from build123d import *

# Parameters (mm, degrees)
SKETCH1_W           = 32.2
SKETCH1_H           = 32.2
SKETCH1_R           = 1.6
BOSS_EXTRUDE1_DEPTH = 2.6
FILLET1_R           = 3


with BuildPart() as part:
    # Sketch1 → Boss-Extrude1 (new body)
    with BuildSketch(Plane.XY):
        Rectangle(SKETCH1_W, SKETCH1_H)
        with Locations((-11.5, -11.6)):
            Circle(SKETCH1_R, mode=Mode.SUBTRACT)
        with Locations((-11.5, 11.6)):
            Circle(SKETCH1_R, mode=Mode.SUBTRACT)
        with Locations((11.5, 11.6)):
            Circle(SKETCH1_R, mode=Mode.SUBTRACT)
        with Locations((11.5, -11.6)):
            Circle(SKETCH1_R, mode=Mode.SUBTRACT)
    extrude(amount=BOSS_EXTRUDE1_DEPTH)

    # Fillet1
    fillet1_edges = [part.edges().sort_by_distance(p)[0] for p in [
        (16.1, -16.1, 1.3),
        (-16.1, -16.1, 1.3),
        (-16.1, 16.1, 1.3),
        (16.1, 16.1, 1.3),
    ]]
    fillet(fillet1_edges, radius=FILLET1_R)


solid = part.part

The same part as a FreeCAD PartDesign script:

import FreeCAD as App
import Part
import Sketcher

V = App.Vector


def edges_at(feature, points):
    """Names of the edges that pass closest to the given points."""
    edges = feature.Shape.Edges
    near = lambda p: min(range(len(edges)), key=lambda i: edges[i].distToShape(Part.Vertex(*p))[0])
    return sorted({f"Edge{near(p) + 1}" for p in points})

doc = App.newDocument("Part")
params = doc.addObject("Spreadsheet::Sheet", "Params")
for row, (alias, value) in enumerate([
    ("sketch1_diameter", "3.2 mm"),
    ("sketch1_width", "32.2 mm"),
    ("pad1_length", "2.6 mm"),
    ("fillet_radius", "3 mm"),
], start=1):
    params.set(f"A{row}", alias)
    params.set(f"B{row}", "=" + value)
    params.setAlias(f"B{row}", alias)

body = doc.addObject("PartDesign::Body", "Body")

sketch1 = body.newObject("Sketcher::SketchObject", "Sketch")
sketch1.AttachmentSupport = (doc.getObject("XY_Plane"), [""])
sketch1.MapMode = "FlatFace"
sketch1.addGeometry(Part.LineSegment(V(-16.1, 16.1, 0), V(-16.1, -16.1, 0)), False)
sketch1.addGeometry(Part.LineSegment(V(-16.1, -16.1, 0), V(16.1, -16.1, 0)), False)
sketch1.addGeometry(Part.LineSegment(V(16.1, -16.1, 0), V(16.1, 16.1, 0)), False)
sketch1.addGeometry(Part.LineSegment(V(16.1, 16.1, 0), V(-16.1, 16.1, 0)), False)
sketch1.addGeometry(Part.Circle(V(-11.5, -11.6, 0), V(0, 0, 1), 1.6), False)
sketch1.addGeometry(Part.Circle(V(11.5, -11.6, 0), V(0, 0, 1), 1.6), False)
sketch1.addGeometry(Part.Circle(V(-11.5, 11.6, 0), V(0, 0, 1), 1.6), False)
sketch1.addGeometry(Part.Circle(V(11.5, 11.6, 0), V(0, 0, 1), 1.6), False)
sketch1.addConstraint(Sketcher.Constraint("Coincident", 0, 2, 1, 1))
sketch1.addConstraint(Sketcher.Constraint("Coincident", 1, 2, 2, 1))
sketch1.addConstraint(Sketcher.Constraint("Coincident", 2, 2, 3, 1))
sketch1.addConstraint(Sketcher.Constraint("Coincident", 3, 2, 0, 1))
sketch1.addConstraint(Sketcher.Constraint("Vertical", 0))
sketch1.addConstraint(Sketcher.Constraint("Horizontal", 1))
sketch1.addConstraint(Sketcher.Constraint("Vertical", 2))
sketch1.addConstraint(Sketcher.Constraint("Horizontal", 3))
sketch1.addConstraint(Sketcher.Constraint("Equal", 4, 5))
sketch1.addConstraint(Sketcher.Constraint("Equal", 5, 6))
sketch1.addConstraint(Sketcher.Constraint("Equal", 6, 7))
sketch1.addConstraint(Sketcher.Constraint("Symmetric", 5, 3, 6, 3, -1, 1))
sketch1.addConstraint(Sketcher.Constraint("Symmetric", 4, 3, 7, 3, -1, 1))
sketch1.addConstraint(Sketcher.Constraint("Symmetric", 0, 2, 2, 2, -1, 1))
sketch1.addConstraint(Sketcher.Constraint("Symmetric", 4, 3, 5, 3, -2))
sketch1.addConstraint(Sketcher.Constraint("Equal", 3, 0))
sketch1.addConstraint(Sketcher.Constraint("Diameter", 4, 3.2))
sketch1.addConstraint(Sketcher.Constraint("DistanceX", 1, 1, 1, 2, 32.2))
sketch1.addConstraint(Sketcher.Constraint("DistanceX", 4, 3, 5, 3, 23.0))
sketch1.addConstraint(Sketcher.Constraint("DistanceY", 4, 3, -1, 1, 11.6))
sketch1.setExpression("Constraints[16]", "Params.sketch1_diameter")
sketch1.setExpression("Constraints[17]", "Params.sketch1_width")
pad1 = body.newObject("PartDesign::Pad", "Pad")
pad1.Profile = sketch1
pad1.setExpression("Length", "Params.pad1_length")
doc.recompute()

fillet = body.newObject("PartDesign::Fillet", "Fillet")
fillet.Base = (pad1, edges_at(pad1, [
    (16.1, -16.1, 1.3),
    (-16.1, -16.1, 1.3),
    (-16.1, 16.1, 1.3),
    (16.1, 16.1, 1.3),
]))
fillet.setExpression("Radius", "Params.fillet_radius")

doc.recompute()
